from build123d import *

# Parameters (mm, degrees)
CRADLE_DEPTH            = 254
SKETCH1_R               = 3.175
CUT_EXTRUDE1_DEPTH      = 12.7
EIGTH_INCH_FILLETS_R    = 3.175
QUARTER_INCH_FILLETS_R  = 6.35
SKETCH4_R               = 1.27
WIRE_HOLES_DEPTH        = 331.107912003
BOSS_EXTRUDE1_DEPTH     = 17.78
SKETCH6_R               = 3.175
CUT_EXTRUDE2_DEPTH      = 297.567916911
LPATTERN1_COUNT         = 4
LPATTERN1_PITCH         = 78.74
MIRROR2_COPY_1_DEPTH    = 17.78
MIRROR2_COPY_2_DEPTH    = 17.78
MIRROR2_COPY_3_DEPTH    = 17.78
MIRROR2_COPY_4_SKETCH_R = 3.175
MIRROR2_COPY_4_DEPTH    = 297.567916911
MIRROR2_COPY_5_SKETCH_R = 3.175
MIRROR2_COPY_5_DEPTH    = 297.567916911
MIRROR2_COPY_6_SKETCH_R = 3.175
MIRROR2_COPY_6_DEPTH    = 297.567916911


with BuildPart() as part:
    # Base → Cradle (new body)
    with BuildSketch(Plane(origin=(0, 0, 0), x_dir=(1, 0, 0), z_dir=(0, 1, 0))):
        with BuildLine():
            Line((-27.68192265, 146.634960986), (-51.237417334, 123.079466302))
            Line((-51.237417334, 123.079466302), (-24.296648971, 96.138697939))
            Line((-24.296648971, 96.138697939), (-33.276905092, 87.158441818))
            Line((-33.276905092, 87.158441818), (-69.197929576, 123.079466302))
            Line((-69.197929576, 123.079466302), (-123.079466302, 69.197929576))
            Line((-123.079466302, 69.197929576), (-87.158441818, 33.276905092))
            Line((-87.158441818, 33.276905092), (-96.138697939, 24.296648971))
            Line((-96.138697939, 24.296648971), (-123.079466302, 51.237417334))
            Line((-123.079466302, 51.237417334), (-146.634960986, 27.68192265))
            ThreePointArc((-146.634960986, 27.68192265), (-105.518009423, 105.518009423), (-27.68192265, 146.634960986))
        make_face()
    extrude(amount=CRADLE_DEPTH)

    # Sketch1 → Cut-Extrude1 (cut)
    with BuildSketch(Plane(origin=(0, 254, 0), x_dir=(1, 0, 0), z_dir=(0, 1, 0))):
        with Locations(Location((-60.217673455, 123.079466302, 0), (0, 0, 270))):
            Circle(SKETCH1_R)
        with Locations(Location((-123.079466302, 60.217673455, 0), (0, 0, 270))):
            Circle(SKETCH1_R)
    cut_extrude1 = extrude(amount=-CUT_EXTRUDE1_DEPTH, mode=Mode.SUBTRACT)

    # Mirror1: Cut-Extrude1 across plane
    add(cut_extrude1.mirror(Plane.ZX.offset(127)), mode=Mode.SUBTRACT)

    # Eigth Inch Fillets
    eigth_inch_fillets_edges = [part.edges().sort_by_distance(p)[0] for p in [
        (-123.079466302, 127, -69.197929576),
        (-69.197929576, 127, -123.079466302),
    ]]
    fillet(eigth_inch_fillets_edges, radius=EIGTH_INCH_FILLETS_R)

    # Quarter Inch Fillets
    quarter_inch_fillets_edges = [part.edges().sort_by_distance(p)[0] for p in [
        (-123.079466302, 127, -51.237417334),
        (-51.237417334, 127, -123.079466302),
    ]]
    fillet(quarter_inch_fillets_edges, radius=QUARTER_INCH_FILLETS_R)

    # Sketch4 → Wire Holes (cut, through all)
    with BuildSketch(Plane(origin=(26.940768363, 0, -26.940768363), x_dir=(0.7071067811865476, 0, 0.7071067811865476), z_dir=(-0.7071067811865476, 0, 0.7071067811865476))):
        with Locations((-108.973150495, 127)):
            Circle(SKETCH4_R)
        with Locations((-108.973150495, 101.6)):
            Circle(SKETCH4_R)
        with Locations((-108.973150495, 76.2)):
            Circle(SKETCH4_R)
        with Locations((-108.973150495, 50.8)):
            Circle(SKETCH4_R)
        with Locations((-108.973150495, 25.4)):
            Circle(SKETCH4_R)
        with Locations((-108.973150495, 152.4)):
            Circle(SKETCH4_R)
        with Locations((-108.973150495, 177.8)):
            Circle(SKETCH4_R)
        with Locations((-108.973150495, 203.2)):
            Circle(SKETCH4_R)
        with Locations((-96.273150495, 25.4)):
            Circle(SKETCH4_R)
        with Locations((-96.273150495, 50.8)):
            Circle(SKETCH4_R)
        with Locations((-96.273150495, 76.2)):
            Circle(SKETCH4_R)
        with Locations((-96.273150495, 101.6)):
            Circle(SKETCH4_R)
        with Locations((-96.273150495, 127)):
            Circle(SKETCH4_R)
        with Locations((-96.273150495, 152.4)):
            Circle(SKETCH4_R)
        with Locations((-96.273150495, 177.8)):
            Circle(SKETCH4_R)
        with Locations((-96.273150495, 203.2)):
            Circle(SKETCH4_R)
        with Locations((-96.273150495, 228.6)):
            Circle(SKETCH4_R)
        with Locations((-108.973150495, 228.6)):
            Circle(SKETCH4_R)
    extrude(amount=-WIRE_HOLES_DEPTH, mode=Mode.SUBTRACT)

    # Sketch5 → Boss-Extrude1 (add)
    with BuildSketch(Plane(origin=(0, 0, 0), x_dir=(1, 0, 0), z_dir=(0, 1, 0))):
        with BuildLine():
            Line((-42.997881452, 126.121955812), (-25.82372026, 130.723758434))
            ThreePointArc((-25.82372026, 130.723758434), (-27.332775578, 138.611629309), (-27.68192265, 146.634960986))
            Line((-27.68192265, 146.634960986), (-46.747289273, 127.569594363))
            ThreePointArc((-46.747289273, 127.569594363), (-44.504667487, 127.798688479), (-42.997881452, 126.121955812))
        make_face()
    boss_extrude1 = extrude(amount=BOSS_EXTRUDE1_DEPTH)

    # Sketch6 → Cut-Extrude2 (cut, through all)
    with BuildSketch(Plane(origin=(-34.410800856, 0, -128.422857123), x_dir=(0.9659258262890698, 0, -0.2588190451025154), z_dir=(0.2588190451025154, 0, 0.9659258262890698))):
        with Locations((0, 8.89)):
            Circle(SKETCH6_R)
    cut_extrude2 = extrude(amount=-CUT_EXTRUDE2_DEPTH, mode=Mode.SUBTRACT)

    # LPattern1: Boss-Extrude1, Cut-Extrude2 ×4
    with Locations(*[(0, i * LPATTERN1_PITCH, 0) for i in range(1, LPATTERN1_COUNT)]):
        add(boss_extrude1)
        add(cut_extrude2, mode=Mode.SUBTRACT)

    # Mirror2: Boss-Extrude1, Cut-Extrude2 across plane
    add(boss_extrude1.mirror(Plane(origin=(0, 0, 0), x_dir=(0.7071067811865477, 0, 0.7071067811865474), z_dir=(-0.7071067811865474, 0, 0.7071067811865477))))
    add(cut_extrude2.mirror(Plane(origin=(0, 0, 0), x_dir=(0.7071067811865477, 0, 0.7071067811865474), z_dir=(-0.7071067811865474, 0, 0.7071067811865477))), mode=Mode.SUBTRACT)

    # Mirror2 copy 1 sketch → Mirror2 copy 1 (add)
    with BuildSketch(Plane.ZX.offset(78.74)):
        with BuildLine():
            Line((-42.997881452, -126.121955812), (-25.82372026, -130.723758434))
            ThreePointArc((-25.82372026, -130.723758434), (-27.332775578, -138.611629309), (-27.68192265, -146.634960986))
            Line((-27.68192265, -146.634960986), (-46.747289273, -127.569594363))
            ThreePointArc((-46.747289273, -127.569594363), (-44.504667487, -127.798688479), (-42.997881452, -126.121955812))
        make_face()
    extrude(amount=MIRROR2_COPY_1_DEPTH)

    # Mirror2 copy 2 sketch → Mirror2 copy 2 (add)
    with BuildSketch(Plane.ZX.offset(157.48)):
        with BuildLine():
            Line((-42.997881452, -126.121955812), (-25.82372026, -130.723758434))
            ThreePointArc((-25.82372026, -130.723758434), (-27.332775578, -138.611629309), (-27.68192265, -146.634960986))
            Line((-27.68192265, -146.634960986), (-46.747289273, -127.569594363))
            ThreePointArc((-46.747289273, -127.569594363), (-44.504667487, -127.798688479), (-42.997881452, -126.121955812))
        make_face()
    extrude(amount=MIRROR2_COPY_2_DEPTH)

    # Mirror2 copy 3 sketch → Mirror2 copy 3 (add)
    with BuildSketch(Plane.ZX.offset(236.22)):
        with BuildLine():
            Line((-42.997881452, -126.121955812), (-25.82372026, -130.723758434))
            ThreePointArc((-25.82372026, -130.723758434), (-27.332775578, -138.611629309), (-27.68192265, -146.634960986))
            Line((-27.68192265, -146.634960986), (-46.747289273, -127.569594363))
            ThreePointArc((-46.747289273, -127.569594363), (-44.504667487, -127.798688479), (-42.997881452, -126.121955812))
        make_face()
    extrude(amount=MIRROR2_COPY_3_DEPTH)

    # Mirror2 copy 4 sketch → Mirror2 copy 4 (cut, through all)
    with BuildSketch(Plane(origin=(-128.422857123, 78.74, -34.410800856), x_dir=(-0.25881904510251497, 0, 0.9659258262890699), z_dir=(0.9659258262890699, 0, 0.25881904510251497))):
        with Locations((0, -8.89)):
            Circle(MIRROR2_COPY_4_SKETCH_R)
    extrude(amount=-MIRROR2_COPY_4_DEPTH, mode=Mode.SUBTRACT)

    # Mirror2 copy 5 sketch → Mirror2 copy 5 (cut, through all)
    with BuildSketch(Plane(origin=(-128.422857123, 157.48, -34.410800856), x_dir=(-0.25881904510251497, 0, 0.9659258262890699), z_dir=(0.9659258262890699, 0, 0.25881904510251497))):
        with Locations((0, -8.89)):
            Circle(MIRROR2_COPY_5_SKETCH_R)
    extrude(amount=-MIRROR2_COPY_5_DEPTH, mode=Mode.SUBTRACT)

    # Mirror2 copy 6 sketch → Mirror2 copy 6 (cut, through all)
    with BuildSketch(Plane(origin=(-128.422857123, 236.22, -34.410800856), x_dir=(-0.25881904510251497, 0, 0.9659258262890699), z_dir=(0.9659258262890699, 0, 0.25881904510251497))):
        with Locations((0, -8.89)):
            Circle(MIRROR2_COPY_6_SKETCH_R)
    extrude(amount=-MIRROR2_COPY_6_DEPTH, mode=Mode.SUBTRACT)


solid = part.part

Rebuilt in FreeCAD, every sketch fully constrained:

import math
import FreeCAD as App
import Part
import Sketcher
Q = App.Units.Quantity


def edges_at(feature, points):
    """Names of the edges that pass closest to the given points."""
    edges = feature.Shape.Edges
    near = lambda p: min(range(len(edges)), key=lambda i: edges[i].distToShape(Part.Vertex(*p))[0])
    return sorted({f"Edge{near(p) + 1}" for p in points})

doc = App.newDocument("Part")
body = doc.addObject("PartDesign::Body", "Body")

# Sketch on XZ plane
sketch1 = body.newObject("Sketcher::SketchObject", "Sketch")
sketch1.AttachmentSupport = (doc.getObject("XZ_Plane"), [""])
sketch1.MapMode = "FlatFace"
sketch1.addGeometry([
    Part.LineSegment(App.Vector(-51.237417, -123.079466, 0), App.Vector(-27.681923, -146.634961, 0)),  # 0
    Part.ArcOfCircle(Part.Circle(App.Vector(0, 0, 0), App.Vector(0, 0, 1), 149.225), math.radians(-169.309447), math.radians(-100.690553)),  # 1
    Part.LineSegment(App.Vector(-146.634961, -27.681923, 0), App.Vector(-123.079466, -51.237417, 0)),  # 2
    Part.LineSegment(App.Vector(-123.079466, -51.237417, 0), App.Vector(-96.138698, -24.296649, 0)),  # 3
    Part.LineSegment(App.Vector(-96.138698, -24.296649, 0), App.Vector(-87.158442, -33.276905, 0)),  # 4
    Part.LineSegment(App.Vector(-87.158442, -33.276905, 0), App.Vector(-123.079466, -69.19793, 0)),  # 5
    Part.LineSegment(App.Vector(-123.079466, -69.19793, 0), App.Vector(-69.19793, -123.079466, 0)),  # 6
    Part.LineSegment(App.Vector(-69.19793, -123.079466, 0), App.Vector(-33.276905, -87.158442, 0)),  # 7
    Part.LineSegment(App.Vector(-33.276905, -87.158442, 0), App.Vector(-24.296649, -96.138698, 0)),  # 8
    Part.LineSegment(App.Vector(-24.296649, -96.138698, 0), App.Vector(-51.237417, -123.079466, 0)),  # 9
], False)
sketch1.addConstraint([
    Sketcher.Constraint("Coincident", 0, 2, 1, 2),
    Sketcher.Constraint("Coincident", 1, 1, 2, 1),
    Sketcher.Constraint("Coincident", 2, 2, 3, 1),
    Sketcher.Constraint("Coincident", 3, 2, 4, 1),
    Sketcher.Constraint("Coincident", 4, 2, 5, 1),
    Sketcher.Constraint("Coincident", 5, 2, 6, 1),
    Sketcher.Constraint("Coincident", 6, 2, 7, 1),
    Sketcher.Constraint("Coincident", 7, 2, 8, 1),
    Sketcher.Constraint("Coincident", 8, 2, 9, 1),
    Sketcher.Constraint("Coincident", 9, 2, 0, 1),
    Sketcher.Constraint("Coincident", 1, 3, -1, 1),
    Sketcher.Constraint("Parallel", 0, 2),
    Sketcher.Constraint("Perpendicular", 2, 3),
    Sketcher.Constraint("Perpendicular", 3, 4),
    Sketcher.Constraint("Perpendicular", 4, 5),
    Sketcher.Constraint("Perpendicular", 5, 6),
    Sketcher.Constraint("Perpendicular", 6, 7),
    Sketcher.Constraint("Perpendicular", 7, 8),
    Sketcher.Constraint("Perpendicular", 8, 9),
    Sketcher.Constraint("Horizontal", 6, 2, 9, 2),
    Sketcher.Constraint("Vertical", 2, 2, 5, 2),
    Sketcher.Constraint("Equal", 0, 2),
    Sketcher.Constraint("Equal", 5, 7),
    Sketcher.Constraint("Equal", 4, 8),
    Sketcher.Constraint("Equal", 3, 9),
    Sketcher.Constraint("Distance", 5, Q("2 in")),
    Sketcher.Constraint("Distance", 6, Q("3 in")),
    Sketcher.Constraint("Radius", 1, Q("5.875 in")),
    Sketcher.Constraint("Distance", 3, Q("1.5 in")),
    Sketcher.Constraint("Distance", 0, 33.3125),
])
pad1 = body.newObject("PartDesign::Pad", "Pad")
pad1.Profile = sketch1
pad1.Length = Q("10 in")
pad1.Reversed = True

# Sketch on XZ plane
sketch2 = body.newObject("Sketcher::SketchObject", "Sketch001")
sketch2.AttachmentSupport = (doc.getObject("XZ_Plane"), [""])
sketch2.MapMode = "FlatFace"
sketch2.AttachmentOffset = App.Placement(App.Vector(0, 0, -10 * 25.4), App.Rotation())
sketch2.addGeometry([
    Part.Circle(App.Vector(-60.217673, -123.079466, 0), App.Vector(0, 0, 1), 3.175),
    Part.Circle(App.Vector(-123.079466, -60.217673, 0), App.Vector(0, 0, 1), 3.175),
], False)
sketch2.addConstraint([
    Sketcher.Constraint("Equal", 0, 1),
    Sketcher.Constraint("Diameter", 0, Q("0.25 in")),
    Sketcher.Constraint("DistanceX", 0, 3, -1, 1, 60.217673),
    Sketcher.Constraint("DistanceY", 0, 3, -1, 1, 123.079466),
    Sketcher.Constraint("DistanceX", 1, 3, -1, 1, 123.079466),
    Sketcher.Constraint("DistanceY", 1, 3, -1, 1, 60.217673),
])
pocket1 = body.newObject("PartDesign::Pocket", "Pocket")
pocket1.Profile = sketch2
pocket1.Length = Q("0.5 in")
pocket1.Reversed = True
doc.recompute()

datumplane = body.newObject("PartDesign::Plane", "DatumPlane")
datumplane.AttachmentSupport = (doc.getObject("XZ_Plane"), [""])
datumplane.MapMode = "FlatFace"
datumplane.AttachmentOffset = App.Placement(App.Vector(0, 0, -5 * 25.4), App.Rotation())
mirrored = body.newObject("PartDesign::Mirrored", "Mirrored")
mirrored.Originals = [pocket1]
mirrored.MirrorPlane = (datumplane, [""])
body.Tip = mirrored
doc.recompute()

fillet = body.newObject("PartDesign::Fillet", "Fillet")
fillet.Base = (mirrored, edges_at(mirrored, [(-123.079, 127, -69.198), (-69.198, 127, -123.079)]))
fillet.Radius = Q("0.125 in")
doc.recompute()

fillet2 = body.newObject("PartDesign::Fillet", "Fillet001")
fillet2.Base = (fillet, edges_at(fillet, [(-123.079, 127, -51.237), (-51.237, 127, -123.079)]))
fillet2.Radius = Q("0.25 in")

# Sketch on an angled plane
sketch3 = body.newObject("Sketcher::SketchObject", "Sketch002")
sketch3.Placement = App.Placement(App.Vector(26.940768, 0, -26.940768), App.Rotation(App.Vector(0.707106781, 0, 0.707106781), App.Vector(0, 0.999999999, 0), App.Vector(-0.707106781, 0, 0.707106781), "ZXY"))
sketch3.addGeometry([
    Part.Circle(App.Vector(-108.97315, 127, 0), App.Vector(0, 0, 1), 1.27),  # 0
    Part.Circle(App.Vector(-108.97315, 101.6, 0), App.Vector(0, 0, 1), 1.27),  # 1
    Part.Circle(App.Vector(-108.97315, 76.2, 0), App.Vector(0, 0, 1), 1.27),  # 2
    Part.Circle(App.Vector(-108.97315, 50.8, 0), App.Vector(0, 0, 1), 1.27),  # 3
    Part.Circle(App.Vector(-108.97315, 25.4, 0), App.Vector(0, 0, 1), 1.27),  # 4
    Part.Circle(App.Vector(-108.97315, 152.4, 0), App.Vector(0, 0, 1), 1.27),  # 5
    Part.Circle(App.Vector(-108.97315, 177.8, 0), App.Vector(0, 0, 1), 1.27),  # 6
    Part.Circle(App.Vector(-108.97315, 203.2, 0), App.Vector(0, 0, 1), 1.27),  # 7
    Part.Circle(App.Vector(-96.27315, 25.4, 0), App.Vector(0, 0, 1), 1.27),  # 8
    Part.Circle(App.Vector(-96.27315, 50.8, 0), App.Vector(0, 0, 1), 1.27),  # 9
    Part.Circle(App.Vector(-96.27315, 76.2, 0), App.Vector(0, 0, 1), 1.27),  # 10
    Part.Circle(App.Vector(-96.27315, 101.6, 0), App.Vector(0, 0, 1), 1.27),  # 11
    Part.Circle(App.Vector(-96.27315, 127, 0), App.Vector(0, 0, 1), 1.27),  # 12
    Part.Circle(App.Vector(-96.27315, 152.4, 0), App.Vector(0, 0, 1), 1.27),  # 13
    Part.Circle(App.Vector(-96.27315, 177.8, 0), App.Vector(0, 0, 1), 1.27),  # 14
    Part.Circle(App.Vector(-96.27315, 203.2, 0), App.Vector(0, 0, 1), 1.27),  # 15
    Part.Circle(App.Vector(-96.27315, 228.6, 0), App.Vector(0, 0, 1), 1.27),  # 16
    Part.Circle(App.Vector(-108.97315, 228.6, 0), App.Vector(0, 0, 1), 1.27),  # 17
], False)
sketch3.addConstraint([
    Sketcher.Constraint("Equal", 0, 1),
    Sketcher.Constraint("Equal", 1, 2),
    Sketcher.Constraint("Equal", 2, 3),
    Sketcher.Constraint("Equal", 3, 4),
    Sketcher.Constraint("Equal", 4, 5),
    Sketcher.Constraint("Equal", 5, 6),
    Sketcher.Constraint("Equal", 6, 7),
    Sketcher.Constraint("Equal", 7, 8),
    Sketcher.Constraint("Equal", 8, 9),
    Sketcher.Constraint("Equal", 9, 10),
    Sketcher.Constraint("Equal", 10, 11),
    Sketcher.Constraint("Equal", 11, 12),
    Sketcher.Constraint("Equal", 12, 13),
    Sketcher.Constraint("Equal", 13, 14),
    Sketcher.Constraint("Equal", 14, 15),
    Sketcher.Constraint("Equal", 15, 16),
    Sketcher.Constraint("Equal", 16, 17),
    Sketcher.Constraint("Horizontal", 4, 3, 8, 3),
    Sketcher.Constraint("Horizontal", 3, 3, 9, 3),
    Sketcher.Constraint("Horizontal", 2, 3, 10, 3),
    Sketcher.Constraint("Horizontal", 1, 3, 11, 3),
    Sketcher.Constraint("Horizontal", 0, 3, 12, 3),
    Sketcher.Constraint("Horizontal", 5, 3, 13, 3),
    Sketcher.Constraint("Horizontal", 6, 3, 14, 3),
    Sketcher.Constraint("Horizontal", 7, 3, 15, 3),
    Sketcher.Constraint("Horizontal", 16, 3, 17, 3),
    Sketcher.Constraint("Vertical", 0, 3, 1, 3),
    Sketcher.Constraint("Vertical", 1, 3, 2, 3),
    Sketcher.Constraint("Vertical", 2, 3, 3, 3),
    Sketcher.Constraint("Vertical", 3, 3, 4, 3),
    Sketcher.Constraint("Vertical", 4, 3, 5, 3),
    Sketcher.Constraint("Vertical", 5, 3, 6, 3),
    Sketcher.Constraint("Vertical", 6, 3, 7, 3),
    Sketcher.Constraint("Vertical", 8, 3, 9, 3),
    Sketcher.Constraint("Vertical", 9, 3, 10, 3),
    Sketcher.Constraint("Vertical", 10, 3, 11, 3),
    Sketcher.Constraint("Vertical", 11, 3, 12, 3),
    Sketcher.Constraint("Vertical", 12, 3, 13, 3),
    Sketcher.Constraint("Vertical", 13, 3, 14, 3),
    Sketcher.Constraint("Vertical", 14, 3, 15, 3),
    Sketcher.Constraint("Vertical", 15, 3, 16, 3),
    Sketcher.Constraint("Vertical", 7, 3, 17, 3),
    Sketcher.Constraint("Diameter", 0, Q("0.1 in")),
    Sketcher.Constraint("DistanceY", -1, 1, 0, 3, Q("5 in")),
    Sketcher.Constraint("DistanceY", -1, 1, 1, 3, Q("4 in")),
    Sketcher.Constraint("DistanceY", -1, 1, 2, 3, Q("3 in")),
    Sketcher.Constraint("DistanceY", -1, 1, 3, 3, Q("2 in")),
    Sketcher.Constraint("DistanceY", -1, 1, 4, 3, Q("1 in")),
    Sketcher.Constraint("DistanceY", -1, 1, 5, 3, Q("6 in")),
    Sketcher.Constraint("DistanceY", -1, 1, 6, 3, Q("7 in")),
    Sketcher.Constraint("DistanceY", -1, 1, 7, 3, Q("8 in")),
    Sketcher.Constraint("DistanceY", -1, 1, 16, 3, Q("9 in")),
    Sketcher.Constraint("DistanceX", 4, 3, 8, 3, Q("0.5 in")),
    Sketcher.Constraint("DistanceX", 0, 3, -1, 1, 108.97315),
])
pocket2 = body.newObject("PartDesign::Pocket", "Pocket001")
pocket2.Profile = sketch3
pocket2.Type = "ThroughAll"

# Sketch on XZ plane
sketch4 = body.newObject("Sketcher::SketchObject", "Sketch003")
sketch4.AttachmentSupport = (doc.getObject("XZ_Plane"), [""])
sketch4.MapMode = "FlatFace"
sketch4.addGeometry([
    Part.LineSegment(App.Vector(-42.997881, -126.121956, 0), App.Vector(-25.82372, -130.723758, 0)),
    Part.ArcOfCircle(Part.Circle(App.Vector(27.523235, -145.018032, 0), App.Vector(0, 0, 1), 55.228832), math.radians(165), math.radians(181.677683)),
    Part.LineSegment(App.Vector(-27.681923, -146.634961, 0), App.Vector(-46.747289, -127.569594, 0)),
    Part.ArcOfCircle(Part.Circle(App.Vector(-45.400625, -125.478142, 0), App.Vector(0, 0, 1), 2.487504), math.radians(-122.777058), math.radians(-15)),
], False)
sketch4.addConstraint([
    Sketcher.Constraint("Coincident", 0, 2, 1, 1),
    Sketcher.Constraint("Coincident", 1, 2, 2, 1),
    Sketcher.Constraint("Coincident", 2, 2, 3, 1),
    Sketcher.Constraint("Coincident", 3, 2, 0, 1),
    Sketcher.Constraint("Angle", 0, Q("-15 deg")),
    Sketcher.Constraint("Angle", 2, Q("135 deg")),
    Sketcher.Constraint("Distance", 0, Q("0.7 in")),
    Sketcher.Constraint("Radius", 1, 55.228832),
    Sketcher.Constraint("Radius", 3, 2.487504),
    Sketcher.Constraint("Distance", 2, 26.9625),
    Sketcher.Constraint("DistanceY", 1, 3, -1, 1, 145.018032),
    Sketcher.Constraint("DistanceX", 0, 2, -1, 1, 25.82372),
    Sketcher.Constraint("DistanceY", 0, 2, -1, 1, 130.723758),
    Sketcher.Constraint("DistanceY", 1, 2, -1, 1, 146.634961),
])
pad2 = body.newObject("PartDesign::Pad", "Pad001")
pad2.Profile = sketch4
pad2.Length = Q("0.7 in")
pad2.Reversed = True

# Sketch on an angled plane
sketch5 = body.newObject("Sketcher::SketchObject", "Sketch004")
sketch5.Placement = App.Placement(App.Vector(-34.410801, 0, -128.422857), App.Rotation(App.Vector(0.965925826, 0, -0.258819045), App.Vector(0, 0.999999999, 0), App.Vector(0.258819045, 0, 0.965925826), "ZXY"))
sketch5.addGeometry(Part.Circle(App.Vector(0, 8.89, 0), App.Vector(0, 0, 1), 3.175), False)
sketch5.addConstraint([
    Sketcher.Constraint("PointOnObject", 0, 3, -2),
    Sketcher.Constraint("Diameter", 0, Q("0.25 in")),
    Sketcher.Constraint("DistanceY", -1, 1, 0, 3, Q("0.35 in")),
])
pocket3 = body.newObject("PartDesign::Pocket", "Pocket002")
pocket3.Profile = sketch5
pocket3.Type = "ThroughAll"
doc.recompute()

linearpattern = body.newObject("PartDesign::LinearPattern", "LinearPattern")
linearpattern.Originals = [pad2, pocket3]
linearpattern.Direction = (doc.getObject("Y_Axis"), [""])
linearpattern.Mode = "offset"
linearpattern.Offset = Q("3.1 in")
linearpattern.Occurrences = 4
body.Tip = linearpattern
doc.recompute()

datumplane2 = body.newObject("PartDesign::Plane", "DatumPlane001")
datumplane2.Placement = App.Placement(App.Vector(0, 0, 0), App.Rotation(App.Vector(-0.707106781, 0, -0.707106781), App.Vector(0, -1, 0), App.Vector(-0.707106781, 0, 0.707106781), "ZXY"))
mirrored2 = body.newObject("PartDesign::Mirrored", "Mirrored001")
mirrored2.Originals = [pad2, pocket3]
mirrored2.MirrorPlane = (datumplane2, [""])
body.Tip = mirrored2

# Sketch on XZ plane
sketch6 = body.newObject("Sketcher::SketchObject", "Sketch005")
sketch6.AttachmentSupport = (doc.getObject("XZ_Plane"), [""])
sketch6.MapMode = "FlatFace"
sketch6.AttachmentOffset = App.Placement(App.Vector(0, 0, -3.1 * 25.4), App.Rotation())
sketch6.addGeometry([
    Part.LineSegment(App.Vector(-130.723758, -25.82372, 0), App.Vector(-126.121956, -42.997881, 0)),
    Part.ArcOfCircle(Part.Circle(App.Vector(-125.478142, -45.400625, 0), App.Vector(0, 0, 1), 2.487504), math.radians(105), math.radians(212.777058)),
    Part.LineSegment(App.Vector(-127.569594, -46.747289, 0), App.Vector(-146.634961, -27.681923, 0)),
    Part.ArcOfCircle(Part.Circle(App.Vector(-145.018032, 27.523235, 0), App.Vector(0, 0, 1), 55.228832), math.radians(-91.677683), math.radians(-75)),
], False)
sketch6.addConstraint([
    Sketcher.Constraint("Coincident", 0, 2, 1, 1),
    Sketcher.Constraint("Coincident", 1, 2, 2, 1),
    Sketcher.Constraint("Coincident", 2, 2, 3, 1),
    Sketcher.Constraint("Coincident", 3, 2, 0, 1),
    Sketcher.Constraint("Angle", 0, Q("-75 deg")),
    Sketcher.Constraint("Angle", 2, Q("135 deg")),
    Sketcher.Constraint("Distance", 0, Q("0.7 in")),
    Sketcher.Constraint("Radius", 3, 55.228832),
    Sketcher.Constraint("Radius", 1, 2.487504),
    Sketcher.Constraint("Distance", 2, 26.9625),
    Sketcher.Constraint("DistanceX", 3, 3, -1, 1, 145.018032),
    Sketcher.Constraint("DistanceY", 0, 2, -1, 1, 42.997881),
    Sketcher.Constraint("DistanceY", 1, 2, -1, 1, 46.747289),
    Sketcher.Constraint("DistanceX", 2, 2, -1, 1, 146.634961),
])
pad3 = body.newObject("PartDesign::Pad", "Pad002")
pad3.Profile = sketch6
pad3.Length = Q("0.7 in")
pad3.Reversed = True

# Sketch on XZ plane
sketch7 = body.newObject("Sketcher::SketchObject", "Sketch006")
sketch7.AttachmentSupport = (doc.getObject("XZ_Plane"), [""])
sketch7.MapMode = "FlatFace"
sketch7.AttachmentOffset = App.Placement(App.Vector(0, 0, -6.2 * 25.4), App.Rotation())
sketch7.addGeometry([
    Part.LineSegment(App.Vector(-130.723758, -25.82372, 0), App.Vector(-126.121956, -42.997881, 0)),
    Part.ArcOfCircle(Part.Circle(App.Vector(-125.478142, -45.400625, 0), App.Vector(0, 0, 1), 2.487504), math.radians(105), math.radians(212.777058)),
    Part.LineSegment(App.Vector(-127.569594, -46.747289, 0), App.Vector(-146.634961, -27.681923, 0)),
    Part.ArcOfCircle(Part.Circle(App.Vector(-145.018032, 27.523235, 0), App.Vector(0, 0, 1), 55.228832), math.radians(-91.677683), math.radians(-75)),
], False)
sketch7.addConstraint([
    Sketcher.Constraint("Coincident", 0, 2, 1, 1),
    Sketcher.Constraint("Coincident", 1, 2, 2, 1),
    Sketcher.Constraint("Coincident", 2, 2, 3, 1),
    Sketcher.Constraint("Coincident", 3, 2, 0, 1),
    Sketcher.Constraint("Angle", 0, Q("-75 deg")),
    Sketcher.Constraint("Angle", 2, Q("135 deg")),
    Sketcher.Constraint("Distance", 0, Q("0.7 in")),
    Sketcher.Constraint("Radius", 3, 55.228832),
    Sketcher.Constraint("Radius", 1, 2.487504),
    Sketcher.Constraint("Distance", 2, 26.9625),
    Sketcher.Constraint("DistanceX", 3, 3, -1, 1, 145.018032),
    Sketcher.Constraint("DistanceY", 0, 2, -1, 1, 42.997881),
    Sketcher.Constraint("DistanceY", 1, 2, -1, 1, 46.747289),
    Sketcher.Constraint("DistanceX", 2, 2, -1, 1, 146.634961),
])
pad4 = body.newObject("PartDesign::Pad", "Pad003")
pad4.Profile = sketch7
pad4.Length = Q("0.7 in")
pad4.Reversed = True

# Sketch on XZ plane
sketch8 = body.newObject("Sketcher::SketchObject", "Sketch007")
sketch8.AttachmentSupport = (doc.getObject("XZ_Plane"), [""])
sketch8.MapMode = "FlatFace"
sketch8.AttachmentOffset = App.Placement(App.Vector(0, 0, -9.3 * 25.4), App.Rotation())
sketch8.addGeometry([
    Part.LineSegment(App.Vector(-130.723758, -25.82372, 0), App.Vector(-126.121956, -42.997881, 0)),
    Part.ArcOfCircle(Part.Circle(App.Vector(-125.478142, -45.400625, 0), App.Vector(0, 0, 1), 2.487504), math.radians(105), math.radians(212.777058)),
    Part.LineSegment(App.Vector(-127.569594, -46.747289, 0), App.Vector(-146.634961, -27.681923, 0)),
    Part.ArcOfCircle(Part.Circle(App.Vector(-145.018032, 27.523235, 0), App.Vector(0, 0, 1), 55.228832), math.radians(-91.677683), math.radians(-75)),
], False)
sketch8.addConstraint([
    Sketcher.Constraint("Coincident", 0, 2, 1, 1),
    Sketcher.Constraint("Coincident", 1, 2, 2, 1),
    Sketcher.Constraint("Coincident", 2, 2, 3, 1),
    Sketcher.Constraint("Coincident", 3, 2, 0, 1),
    Sketcher.Constraint("Angle", 0, Q("-75 deg")),
    Sketcher.Constraint("Angle", 2, Q("135 deg")),
    Sketcher.Constraint("Distance", 0, Q("0.7 in")),
    Sketcher.Constraint("Radius", 3, 55.228832),
    Sketcher.Constraint("Radius", 1, 2.487504),
    Sketcher.Constraint("Distance", 2, 26.9625),
    Sketcher.Constraint("DistanceX", 3, 3, -1, 1, 145.018032),
    Sketcher.Constraint("DistanceY", 0, 2, -1, 1, 42.997881),
    Sketcher.Constraint("DistanceY", 1, 2, -1, 1, 46.747289),
    Sketcher.Constraint("DistanceX", 2, 2, -1, 1, 146.634961),
])
pad5 = body.newObject("PartDesign::Pad", "Pad004")
pad5.Profile = sketch8
pad5.Length = Q("0.7 in")
pad5.Reversed = True

# Sketch on an angled plane
sketch9 = body.newObject("Sketcher::SketchObject", "Sketch008")
sketch9.Placement = App.Placement(App.Vector(-128.422857, 78.74, -34.410801), App.Rotation(App.Vector(-0.258819045, 0, 0.965925826), App.Vector(0, -0.999999999, 0), App.Vector(0.965925826, 0, 0.258819045), "ZXY"))
sketch9.addGeometry(Part.Circle(App.Vector(0, -8.89, 0), App.Vector(0, 0, 1), 3.175), False)
sketch9.addConstraint([
    Sketcher.Constraint("PointOnObject", 0, 3, -2),
    Sketcher.Constraint("Diameter", 0, Q("0.25 in")),
    Sketcher.Constraint("DistanceY", 0, 3, -1, 1, Q("0.35 in")),
])
pocket4 = body.newObject("PartDesign::Pocket", "Pocket003")
pocket4.Profile = sketch9
pocket4.Type = "ThroughAll"

# Sketch on an angled plane
sketch10 = body.newObject("Sketcher::SketchObject", "Sketch009")
sketch10.Placement = App.Placement(App.Vector(-128.422857, 157.48, -34.410801), App.Rotation(App.Vector(-0.258819045, 0, 0.965925826), App.Vector(0, -0.999999999, 0), App.Vector(0.965925826, 0, 0.258819045), "ZXY"))
sketch10.addGeometry(Part.Circle(App.Vector(0, -8.89, 0), App.Vector(0, 0, 1), 3.175), False)
sketch10.addConstraint([
    Sketcher.Constraint("PointOnObject", 0, 3, -2),
    Sketcher.Constraint("Diameter", 0, Q("0.25 in")),
    Sketcher.Constraint("DistanceY", 0, 3, -1, 1, Q("0.35 in")),
])
pocket5 = body.newObject("PartDesign::Pocket", "Pocket004")
pocket5.Profile = sketch10
pocket5.Type = "ThroughAll"

# Sketch on an angled plane
sketch11 = body.newObject("Sketcher::SketchObject", "Sketch010")
sketch11.Placement = App.Placement(App.Vector(-128.422857, 236.22, -34.410801), App.Rotation(App.Vector(-0.258819045, 0, 0.965925826), App.Vector(0, -0.999999999, 0), App.Vector(0.965925826, 0, 0.258819045), "ZXY"))
sketch11.addGeometry(Part.Circle(App.Vector(0, -8.89, 0), App.Vector(0, 0, 1), 3.175), False)
sketch11.addConstraint([
    Sketcher.Constraint("PointOnObject", 0, 3, -2),
    Sketcher.Constraint("Diameter", 0, Q("0.25 in")),
    Sketcher.Constraint("DistanceY", 0, 3, -1, 1, Q("0.35 in")),
])
pocket6 = body.newObject("PartDesign::Pocket", "Pocket005")
pocket6.Profile = sketch11
pocket6.Type = "ThroughAll"

doc.recompute()
